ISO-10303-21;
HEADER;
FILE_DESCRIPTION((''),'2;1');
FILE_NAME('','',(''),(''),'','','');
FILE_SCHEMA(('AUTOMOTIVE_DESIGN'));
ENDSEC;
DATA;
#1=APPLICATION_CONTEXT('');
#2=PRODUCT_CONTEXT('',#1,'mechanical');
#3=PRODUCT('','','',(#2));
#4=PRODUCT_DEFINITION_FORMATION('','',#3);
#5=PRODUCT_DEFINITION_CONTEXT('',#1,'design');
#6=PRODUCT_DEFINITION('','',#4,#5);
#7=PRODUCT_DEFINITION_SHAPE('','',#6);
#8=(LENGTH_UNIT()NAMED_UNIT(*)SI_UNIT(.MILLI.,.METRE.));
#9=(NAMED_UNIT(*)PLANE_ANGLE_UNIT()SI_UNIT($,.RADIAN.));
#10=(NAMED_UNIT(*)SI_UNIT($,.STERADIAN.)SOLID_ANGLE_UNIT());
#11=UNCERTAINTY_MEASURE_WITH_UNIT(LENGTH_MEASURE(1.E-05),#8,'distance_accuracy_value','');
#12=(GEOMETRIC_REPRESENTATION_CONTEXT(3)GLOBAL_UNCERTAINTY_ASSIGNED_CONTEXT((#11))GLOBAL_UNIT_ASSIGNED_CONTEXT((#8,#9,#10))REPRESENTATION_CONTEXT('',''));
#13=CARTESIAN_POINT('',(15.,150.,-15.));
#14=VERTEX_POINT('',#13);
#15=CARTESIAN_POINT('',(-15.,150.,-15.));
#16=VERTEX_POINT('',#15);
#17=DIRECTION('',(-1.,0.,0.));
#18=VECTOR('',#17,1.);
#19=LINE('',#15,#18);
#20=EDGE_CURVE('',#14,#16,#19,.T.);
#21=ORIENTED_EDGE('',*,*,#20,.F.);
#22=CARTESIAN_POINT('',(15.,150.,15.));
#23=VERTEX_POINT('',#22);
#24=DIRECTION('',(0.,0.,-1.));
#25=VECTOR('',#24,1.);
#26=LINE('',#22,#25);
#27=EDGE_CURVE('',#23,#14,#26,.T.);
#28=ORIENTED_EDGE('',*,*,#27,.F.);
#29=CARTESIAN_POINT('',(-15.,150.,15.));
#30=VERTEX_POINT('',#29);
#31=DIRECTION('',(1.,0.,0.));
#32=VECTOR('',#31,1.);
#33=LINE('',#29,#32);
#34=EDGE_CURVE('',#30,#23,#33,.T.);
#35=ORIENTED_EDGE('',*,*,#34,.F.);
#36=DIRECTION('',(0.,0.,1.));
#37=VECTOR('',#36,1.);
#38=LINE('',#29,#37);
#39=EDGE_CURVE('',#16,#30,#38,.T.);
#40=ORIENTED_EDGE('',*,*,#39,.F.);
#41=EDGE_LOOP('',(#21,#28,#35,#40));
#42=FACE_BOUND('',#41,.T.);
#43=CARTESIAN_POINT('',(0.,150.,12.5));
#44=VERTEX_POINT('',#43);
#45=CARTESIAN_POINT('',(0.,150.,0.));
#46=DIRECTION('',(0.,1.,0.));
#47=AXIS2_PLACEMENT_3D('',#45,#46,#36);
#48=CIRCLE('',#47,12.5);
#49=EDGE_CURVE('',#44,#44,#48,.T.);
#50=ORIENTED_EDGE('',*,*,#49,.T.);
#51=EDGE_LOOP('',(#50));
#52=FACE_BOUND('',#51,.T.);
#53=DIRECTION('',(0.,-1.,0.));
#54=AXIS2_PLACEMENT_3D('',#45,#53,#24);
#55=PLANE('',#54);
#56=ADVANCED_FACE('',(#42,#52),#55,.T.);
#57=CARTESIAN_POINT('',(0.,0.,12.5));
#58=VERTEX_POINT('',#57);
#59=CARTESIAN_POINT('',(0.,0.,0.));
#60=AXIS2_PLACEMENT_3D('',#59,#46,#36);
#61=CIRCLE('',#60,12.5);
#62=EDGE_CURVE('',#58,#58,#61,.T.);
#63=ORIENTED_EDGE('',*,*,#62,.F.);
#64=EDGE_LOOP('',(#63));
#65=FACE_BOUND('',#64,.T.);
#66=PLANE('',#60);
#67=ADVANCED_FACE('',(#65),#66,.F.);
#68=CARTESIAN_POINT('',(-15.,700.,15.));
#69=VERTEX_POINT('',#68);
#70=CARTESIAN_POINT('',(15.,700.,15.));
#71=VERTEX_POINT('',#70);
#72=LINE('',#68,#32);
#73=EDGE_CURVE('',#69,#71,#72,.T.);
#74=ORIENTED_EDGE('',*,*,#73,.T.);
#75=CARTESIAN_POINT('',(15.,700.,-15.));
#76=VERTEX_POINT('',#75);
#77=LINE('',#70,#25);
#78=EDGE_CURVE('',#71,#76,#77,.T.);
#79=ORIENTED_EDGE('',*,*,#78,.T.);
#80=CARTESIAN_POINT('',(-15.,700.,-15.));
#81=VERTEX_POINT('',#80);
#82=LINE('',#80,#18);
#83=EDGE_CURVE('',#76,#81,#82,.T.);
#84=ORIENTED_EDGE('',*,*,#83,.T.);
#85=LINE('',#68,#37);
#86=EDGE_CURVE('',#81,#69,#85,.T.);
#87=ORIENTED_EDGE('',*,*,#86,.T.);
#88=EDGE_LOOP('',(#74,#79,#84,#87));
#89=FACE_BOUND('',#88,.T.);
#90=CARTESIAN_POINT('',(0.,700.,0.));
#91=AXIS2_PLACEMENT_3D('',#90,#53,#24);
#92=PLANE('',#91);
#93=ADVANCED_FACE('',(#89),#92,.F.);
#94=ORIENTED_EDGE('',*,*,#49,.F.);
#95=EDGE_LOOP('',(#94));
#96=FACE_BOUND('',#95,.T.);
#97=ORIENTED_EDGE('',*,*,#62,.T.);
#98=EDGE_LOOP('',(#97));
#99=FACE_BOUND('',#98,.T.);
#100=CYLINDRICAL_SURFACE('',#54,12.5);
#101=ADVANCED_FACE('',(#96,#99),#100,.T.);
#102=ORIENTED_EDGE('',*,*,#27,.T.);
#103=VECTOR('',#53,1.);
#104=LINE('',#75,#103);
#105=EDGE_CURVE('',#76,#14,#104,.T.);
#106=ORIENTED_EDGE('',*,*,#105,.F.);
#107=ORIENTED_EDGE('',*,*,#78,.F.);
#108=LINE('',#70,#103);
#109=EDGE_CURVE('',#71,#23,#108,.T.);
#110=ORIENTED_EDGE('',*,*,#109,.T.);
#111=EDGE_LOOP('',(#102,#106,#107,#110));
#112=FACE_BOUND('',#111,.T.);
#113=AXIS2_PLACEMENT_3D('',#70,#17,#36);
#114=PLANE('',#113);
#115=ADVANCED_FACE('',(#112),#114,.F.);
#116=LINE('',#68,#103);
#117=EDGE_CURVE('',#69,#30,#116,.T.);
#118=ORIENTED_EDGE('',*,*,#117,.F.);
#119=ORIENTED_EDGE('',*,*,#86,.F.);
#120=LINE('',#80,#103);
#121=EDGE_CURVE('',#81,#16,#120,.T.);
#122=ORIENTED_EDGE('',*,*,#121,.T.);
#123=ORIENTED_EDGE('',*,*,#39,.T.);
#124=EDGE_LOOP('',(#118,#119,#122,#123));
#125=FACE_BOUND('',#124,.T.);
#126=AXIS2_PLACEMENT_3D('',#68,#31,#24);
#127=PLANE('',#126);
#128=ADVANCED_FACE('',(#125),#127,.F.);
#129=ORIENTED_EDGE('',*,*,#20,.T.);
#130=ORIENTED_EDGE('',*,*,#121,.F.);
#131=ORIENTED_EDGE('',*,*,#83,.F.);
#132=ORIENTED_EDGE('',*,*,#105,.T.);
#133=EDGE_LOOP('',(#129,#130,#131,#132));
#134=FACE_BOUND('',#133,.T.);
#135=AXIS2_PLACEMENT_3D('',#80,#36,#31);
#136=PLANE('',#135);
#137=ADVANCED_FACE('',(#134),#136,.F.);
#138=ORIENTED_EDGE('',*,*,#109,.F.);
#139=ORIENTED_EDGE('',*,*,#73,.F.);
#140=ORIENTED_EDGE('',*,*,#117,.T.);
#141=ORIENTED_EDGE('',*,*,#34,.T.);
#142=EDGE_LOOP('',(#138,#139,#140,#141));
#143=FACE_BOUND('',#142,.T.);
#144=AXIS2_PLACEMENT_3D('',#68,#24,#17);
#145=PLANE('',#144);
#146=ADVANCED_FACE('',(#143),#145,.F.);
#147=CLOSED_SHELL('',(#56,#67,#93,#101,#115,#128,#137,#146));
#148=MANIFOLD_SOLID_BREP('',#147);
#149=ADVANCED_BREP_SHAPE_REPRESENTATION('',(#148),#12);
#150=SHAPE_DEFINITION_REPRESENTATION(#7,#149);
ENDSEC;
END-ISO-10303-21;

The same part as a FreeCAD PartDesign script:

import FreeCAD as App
import Part
import Sketcher
from FreeCAD import Vector


def add_polygon(sketch, points):
    """Adds a closed chain of lines whose ends are joined by coincident constraints."""
    first, n = sketch.GeometryCount, len(points)
    for a, b in zip(points, points[1:] + points[:1]):
        sketch.addGeometry(Part.LineSegment(App.Vector(*a, 0), App.Vector(*b, 0)), False)
    for i in range(n):
        sketch.addConstraint(Sketcher.Constraint("Coincident", first + i, 2, first + (i + 1) % n, 1))

doc = App.newDocument("Part")
body = doc.addObject("PartDesign::Body", "Body")

# Sketch on XZ plane
sketch1 = body.newObject("Sketcher::SketchObject", "Sketch")
sketch1.AttachmentSupport = (doc.getObject("XZ_Plane"), [""])
sketch1.MapMode = "FlatFace"
sketch1.addGeometry(Part.Circle(Vector(0, 0, 0), Vector(0, 0, 1), 12), False)
sketch1.addConstraint([
    Sketcher.Constraint("Coincident", 0, 3, -1, 1),
    Sketcher.Constraint("Diameter", 0, 25.0),
])
pad1 = body.newObject("PartDesign::Pad", "Pad")
pad1.Profile = sketch1
pad1.Length = 150
pad1.Reversed = True

# Sketch on XZ plane
sketch2 = body.newObject("Sketcher::SketchObject", "Sketch001")
sketch2.AttachmentSupport = (doc.getObject("XZ_Plane"), [""])
sketch2.MapMode = "FlatFace"
sketch2.AttachmentOffset = App.Placement(Vector(0, 0, -150), App.Rotation())
add_polygon(sketch2, [(-15, -15), (-15, 15), (15, 15), (15, -15)])  # lines 0-3
sketch2.addConstraint([
    Sketcher.Constraint("Vertical", 0),
    Sketcher.Constraint("Horizontal", 1),
    Sketcher.Constraint("Vertical", 2),
    Sketcher.Constraint("Horizontal", 3),
    Sketcher.Constraint("Symmetric", 0, 2, 2, 2, -1, 1),
    Sketcher.Constraint("Equal", 3, 0),
    Sketcher.Constraint("DistanceX", 1, 1, 1, 2, 30.0),
])
pad2 = body.newObject("PartDesign::Pad", "Pad001")
pad2.Profile = sketch2
pad2.Length = 550
pad2.Reversed = True

doc.recompute()
